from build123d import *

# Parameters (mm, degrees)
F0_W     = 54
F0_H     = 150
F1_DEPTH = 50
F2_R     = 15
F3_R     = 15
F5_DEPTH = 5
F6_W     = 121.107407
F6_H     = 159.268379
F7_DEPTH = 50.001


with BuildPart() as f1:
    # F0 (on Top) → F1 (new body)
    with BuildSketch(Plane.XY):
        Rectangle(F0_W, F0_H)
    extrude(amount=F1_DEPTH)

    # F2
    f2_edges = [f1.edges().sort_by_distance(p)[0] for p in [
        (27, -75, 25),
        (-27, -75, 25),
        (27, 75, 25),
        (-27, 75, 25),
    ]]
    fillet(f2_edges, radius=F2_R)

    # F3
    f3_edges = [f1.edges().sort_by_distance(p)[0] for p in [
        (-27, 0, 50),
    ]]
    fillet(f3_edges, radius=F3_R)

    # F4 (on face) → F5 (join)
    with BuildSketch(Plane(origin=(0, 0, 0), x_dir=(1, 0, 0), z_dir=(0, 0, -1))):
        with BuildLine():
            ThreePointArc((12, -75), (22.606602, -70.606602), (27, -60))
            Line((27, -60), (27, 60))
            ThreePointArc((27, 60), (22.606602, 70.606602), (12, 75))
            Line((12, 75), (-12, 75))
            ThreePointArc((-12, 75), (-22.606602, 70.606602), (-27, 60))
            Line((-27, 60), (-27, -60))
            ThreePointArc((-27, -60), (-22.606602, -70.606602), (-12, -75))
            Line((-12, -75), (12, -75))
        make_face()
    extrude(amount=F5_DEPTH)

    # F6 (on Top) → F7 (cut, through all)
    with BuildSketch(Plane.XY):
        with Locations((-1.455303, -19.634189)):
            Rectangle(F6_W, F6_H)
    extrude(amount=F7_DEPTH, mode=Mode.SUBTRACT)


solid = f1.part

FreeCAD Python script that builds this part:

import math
import FreeCAD as App
import Part
import Sketcher
from FreeCAD import Vector
Q = App.Units.Quantity


def edges_at(feature, points):
    """Names of the edges that pass closest to the given points."""
    edges = feature.Shape.Edges
    near = lambda p: min(range(len(edges)), key=lambda i: edges[i].distToShape(Part.Vertex(*p))[0])
    return sorted({f"Edge{near(p) + 1}" for p in points})

doc = App.newDocument("Part")
body = doc.addObject("PartDesign::Body", "Body")

# Sketch on XY plane
sketch1 = body.newObject("Sketcher::SketchObject", "Sketch")
sketch1.AttachmentSupport = (doc.getObject("XY_Plane"), [""])
sketch1.MapMode = "FlatFace"
sketch1.addGeometry([
    Part.LineSegment(Vector(-27, 75, 0), Vector(-27, -75, 0)),
    Part.LineSegment(Vector(-27, -75, 0), Vector(27, -75, 0)),
    Part.LineSegment(Vector(27, -75, 0), Vector(27, 75, 0)),
    Part.LineSegment(Vector(27, 75, 0), Vector(-27, 75, 0)),
], False)
sketch1.addConstraint([
    Sketcher.Constraint("Coincident", 0, 2, 1, 1),
    Sketcher.Constraint("Coincident", 1, 2, 2, 1),
    Sketcher.Constraint("Coincident", 2, 2, 3, 1),
    Sketcher.Constraint("Coincident", 3, 2, 0, 1),
    Sketcher.Constraint("Vertical", 0),
    Sketcher.Constraint("Horizontal", 1),
    Sketcher.Constraint("Vertical", 2),
    Sketcher.Constraint("Horizontal", 3),
    Sketcher.Constraint("Symmetric", 0, 2, 2, 2, -1, 1),
    Sketcher.Constraint("DistanceX", 1, 1, 1, 2, Q("54 mm")),
    Sketcher.Constraint("DistanceY", 0, 2, 0, 1, Q("150 mm")),
])
pad1 = body.newObject("PartDesign::Pad", "Pad")
pad1.Profile = sketch1
pad1.Length = 50
doc.recompute()

fillet = body.newObject("PartDesign::Fillet", "Fillet")
fillet.Base = (pad1, edges_at(pad1, [
    (27, -75, 25),
    (-27, -75, 25),
    (27, 75, 25),
    (-27, 75, 25),
]))
fillet.Radius = 15
doc.recompute()

fillet2 = body.newObject("PartDesign::Fillet", "Fillet001")
fillet2.Base = (fillet, edges_at(fillet, [(-27, 0, 50)]))
fillet2.Radius = 15

# Sketch on XY plane
sketch2 = body.newObject("Sketcher::SketchObject", "Sketch001")
sketch2.AttachmentSupport = (doc.getObject("XY_Plane"), [""])
sketch2.MapMode = "FlatFace"
sketch2.addGeometry([
    Part.ArcOfCircle(Part.Circle(Vector(12.000001, 60.000001, 0), Vector(0, 0, 1), 14.999999), math.radians(-0.000004), math.radians(90.000004)),  # 0
    Part.LineSegment(Vector(27, 60, 0), Vector(27, -60, 0)),  # 1
    Part.ArcOfCircle(Part.Circle(Vector(12.000001, -60.000001, 0), Vector(0, 0, 1), 14.999999), math.radians(-90.000004), math.radians(0.000004)),  # 2
    Part.LineSegment(Vector(12, -75, 0), Vector(-12, -75, 0)),  # 3
    Part.ArcOfCircle(Part.Circle(Vector(-12.000001, -60.000001, 0), Vector(0, 0, 1), 14.999999), math.radians(179.999996), math.radians(270.000004)),  # 4
    Part.LineSegment(Vector(-27, -60, 0), Vector(-27, 60, 0)),  # 5
    Part.ArcOfCircle(Part.Circle(Vector(-12.000001, 60.000001, 0), Vector(0, 0, 1), 14.999999), math.radians(89.999996), math.radians(180.000004)),  # 6
    Part.LineSegment(Vector(-12, 75, 0), Vector(12, 75, 0)),  # 7
], False)
sketch2.addConstraint([
    Sketcher.Constraint("Tangent", 0, 1, 1, 1),
    Sketcher.Constraint("Tangent", 1, 2, 2, 2),
    Sketcher.Constraint("Tangent", 2, 1, 3, 1),
    Sketcher.Constraint("Tangent", 3, 2, 4, 2),
    Sketcher.Constraint("Tangent", 4, 1, 5, 1),
    Sketcher.Constraint("Tangent", 5, 2, 6, 2),
    Sketcher.Constraint("Tangent", 6, 1, 7, 1),
    Sketcher.Constraint("Tangent", 7, 2, 0, 2),
    Sketcher.Constraint("Vertical", 1),
    Sketcher.Constraint("Horizontal", 3),
    Sketcher.Constraint("Vertical", 5),
    Sketcher.Constraint("Horizontal", 7),
    Sketcher.Constraint("Equal", 0, 2),
    Sketcher.Constraint("Equal", 2, 4),
    Sketcher.Constraint("Equal", 4, 6),
    Sketcher.Constraint("Symmetric", 0, 3, 4, 3, -1, 1),
    Sketcher.Constraint("Radius", 0, Q("14.999999 mm")),
    Sketcher.Constraint("DistanceX", 3, 2, 3, 1, Q("24 mm")),
    Sketcher.Constraint("DistanceY", 1, 2, 1, 1, Q("120 mm")),
])
pad2 = body.newObject("PartDesign::Pad", "Pad001")
pad2.Profile = sketch2
pad2.Length = 5
pad2.Reversed = True

# Sketch on XY plane
sketch3 = body.newObject("Sketcher::SketchObject", "Sketch002")
sketch3.AttachmentSupport = (doc.getObject("XY_Plane"), [""])
sketch3.MapMode = "FlatFace"
sketch3.addGeometry([
    Part.LineSegment(Vector(-62.009006, 60, 0), Vector(-62.009006, -99.268378, 0)),
    Part.LineSegment(Vector(-62.009006, -99.268378, 0), Vector(59.0984, -99.268378, 0)),
    Part.LineSegment(Vector(59.0984, -99.268378, 0), Vector(59.0984, 60, 0)),
    Part.LineSegment(Vector(59.0984, 60, 0), Vector(-62.009006, 60, 0)),
], False)
sketch3.addConstraint([
    Sketcher.Constraint("Coincident", 0, 2, 1, 1),
    Sketcher.Constraint("Coincident", 1, 2, 2, 1),
    Sketcher.Constraint("Coincident", 2, 2, 3, 1),
    Sketcher.Constraint("Coincident", 3, 2, 0, 1),
    Sketcher.Constraint("Vertical", 0),
    Sketcher.Constraint("Horizontal", 1),
    Sketcher.Constraint("Vertical", 2),
    Sketcher.Constraint("Horizontal", 3),
    Sketcher.Constraint("DistanceY", -1, 1, 2, 2, Q("60 mm")),
    Sketcher.Constraint("DistanceY", 0, 2, 0, 1, Q("159.268379 mm")),
    Sketcher.Constraint("DistanceX", -1, 1, 1, 2, Q("59.0984 mm")),
    Sketcher.Constraint("DistanceX", 1, 1, 1, 2, Q("121.107407 mm")),
])
pocket1 = body.newObject("PartDesign::Pocket", "Pocket")
pocket1.Profile = sketch3
pocket1.Type = "ThroughAll"
pocket1.Reversed = True

doc.recompute()
